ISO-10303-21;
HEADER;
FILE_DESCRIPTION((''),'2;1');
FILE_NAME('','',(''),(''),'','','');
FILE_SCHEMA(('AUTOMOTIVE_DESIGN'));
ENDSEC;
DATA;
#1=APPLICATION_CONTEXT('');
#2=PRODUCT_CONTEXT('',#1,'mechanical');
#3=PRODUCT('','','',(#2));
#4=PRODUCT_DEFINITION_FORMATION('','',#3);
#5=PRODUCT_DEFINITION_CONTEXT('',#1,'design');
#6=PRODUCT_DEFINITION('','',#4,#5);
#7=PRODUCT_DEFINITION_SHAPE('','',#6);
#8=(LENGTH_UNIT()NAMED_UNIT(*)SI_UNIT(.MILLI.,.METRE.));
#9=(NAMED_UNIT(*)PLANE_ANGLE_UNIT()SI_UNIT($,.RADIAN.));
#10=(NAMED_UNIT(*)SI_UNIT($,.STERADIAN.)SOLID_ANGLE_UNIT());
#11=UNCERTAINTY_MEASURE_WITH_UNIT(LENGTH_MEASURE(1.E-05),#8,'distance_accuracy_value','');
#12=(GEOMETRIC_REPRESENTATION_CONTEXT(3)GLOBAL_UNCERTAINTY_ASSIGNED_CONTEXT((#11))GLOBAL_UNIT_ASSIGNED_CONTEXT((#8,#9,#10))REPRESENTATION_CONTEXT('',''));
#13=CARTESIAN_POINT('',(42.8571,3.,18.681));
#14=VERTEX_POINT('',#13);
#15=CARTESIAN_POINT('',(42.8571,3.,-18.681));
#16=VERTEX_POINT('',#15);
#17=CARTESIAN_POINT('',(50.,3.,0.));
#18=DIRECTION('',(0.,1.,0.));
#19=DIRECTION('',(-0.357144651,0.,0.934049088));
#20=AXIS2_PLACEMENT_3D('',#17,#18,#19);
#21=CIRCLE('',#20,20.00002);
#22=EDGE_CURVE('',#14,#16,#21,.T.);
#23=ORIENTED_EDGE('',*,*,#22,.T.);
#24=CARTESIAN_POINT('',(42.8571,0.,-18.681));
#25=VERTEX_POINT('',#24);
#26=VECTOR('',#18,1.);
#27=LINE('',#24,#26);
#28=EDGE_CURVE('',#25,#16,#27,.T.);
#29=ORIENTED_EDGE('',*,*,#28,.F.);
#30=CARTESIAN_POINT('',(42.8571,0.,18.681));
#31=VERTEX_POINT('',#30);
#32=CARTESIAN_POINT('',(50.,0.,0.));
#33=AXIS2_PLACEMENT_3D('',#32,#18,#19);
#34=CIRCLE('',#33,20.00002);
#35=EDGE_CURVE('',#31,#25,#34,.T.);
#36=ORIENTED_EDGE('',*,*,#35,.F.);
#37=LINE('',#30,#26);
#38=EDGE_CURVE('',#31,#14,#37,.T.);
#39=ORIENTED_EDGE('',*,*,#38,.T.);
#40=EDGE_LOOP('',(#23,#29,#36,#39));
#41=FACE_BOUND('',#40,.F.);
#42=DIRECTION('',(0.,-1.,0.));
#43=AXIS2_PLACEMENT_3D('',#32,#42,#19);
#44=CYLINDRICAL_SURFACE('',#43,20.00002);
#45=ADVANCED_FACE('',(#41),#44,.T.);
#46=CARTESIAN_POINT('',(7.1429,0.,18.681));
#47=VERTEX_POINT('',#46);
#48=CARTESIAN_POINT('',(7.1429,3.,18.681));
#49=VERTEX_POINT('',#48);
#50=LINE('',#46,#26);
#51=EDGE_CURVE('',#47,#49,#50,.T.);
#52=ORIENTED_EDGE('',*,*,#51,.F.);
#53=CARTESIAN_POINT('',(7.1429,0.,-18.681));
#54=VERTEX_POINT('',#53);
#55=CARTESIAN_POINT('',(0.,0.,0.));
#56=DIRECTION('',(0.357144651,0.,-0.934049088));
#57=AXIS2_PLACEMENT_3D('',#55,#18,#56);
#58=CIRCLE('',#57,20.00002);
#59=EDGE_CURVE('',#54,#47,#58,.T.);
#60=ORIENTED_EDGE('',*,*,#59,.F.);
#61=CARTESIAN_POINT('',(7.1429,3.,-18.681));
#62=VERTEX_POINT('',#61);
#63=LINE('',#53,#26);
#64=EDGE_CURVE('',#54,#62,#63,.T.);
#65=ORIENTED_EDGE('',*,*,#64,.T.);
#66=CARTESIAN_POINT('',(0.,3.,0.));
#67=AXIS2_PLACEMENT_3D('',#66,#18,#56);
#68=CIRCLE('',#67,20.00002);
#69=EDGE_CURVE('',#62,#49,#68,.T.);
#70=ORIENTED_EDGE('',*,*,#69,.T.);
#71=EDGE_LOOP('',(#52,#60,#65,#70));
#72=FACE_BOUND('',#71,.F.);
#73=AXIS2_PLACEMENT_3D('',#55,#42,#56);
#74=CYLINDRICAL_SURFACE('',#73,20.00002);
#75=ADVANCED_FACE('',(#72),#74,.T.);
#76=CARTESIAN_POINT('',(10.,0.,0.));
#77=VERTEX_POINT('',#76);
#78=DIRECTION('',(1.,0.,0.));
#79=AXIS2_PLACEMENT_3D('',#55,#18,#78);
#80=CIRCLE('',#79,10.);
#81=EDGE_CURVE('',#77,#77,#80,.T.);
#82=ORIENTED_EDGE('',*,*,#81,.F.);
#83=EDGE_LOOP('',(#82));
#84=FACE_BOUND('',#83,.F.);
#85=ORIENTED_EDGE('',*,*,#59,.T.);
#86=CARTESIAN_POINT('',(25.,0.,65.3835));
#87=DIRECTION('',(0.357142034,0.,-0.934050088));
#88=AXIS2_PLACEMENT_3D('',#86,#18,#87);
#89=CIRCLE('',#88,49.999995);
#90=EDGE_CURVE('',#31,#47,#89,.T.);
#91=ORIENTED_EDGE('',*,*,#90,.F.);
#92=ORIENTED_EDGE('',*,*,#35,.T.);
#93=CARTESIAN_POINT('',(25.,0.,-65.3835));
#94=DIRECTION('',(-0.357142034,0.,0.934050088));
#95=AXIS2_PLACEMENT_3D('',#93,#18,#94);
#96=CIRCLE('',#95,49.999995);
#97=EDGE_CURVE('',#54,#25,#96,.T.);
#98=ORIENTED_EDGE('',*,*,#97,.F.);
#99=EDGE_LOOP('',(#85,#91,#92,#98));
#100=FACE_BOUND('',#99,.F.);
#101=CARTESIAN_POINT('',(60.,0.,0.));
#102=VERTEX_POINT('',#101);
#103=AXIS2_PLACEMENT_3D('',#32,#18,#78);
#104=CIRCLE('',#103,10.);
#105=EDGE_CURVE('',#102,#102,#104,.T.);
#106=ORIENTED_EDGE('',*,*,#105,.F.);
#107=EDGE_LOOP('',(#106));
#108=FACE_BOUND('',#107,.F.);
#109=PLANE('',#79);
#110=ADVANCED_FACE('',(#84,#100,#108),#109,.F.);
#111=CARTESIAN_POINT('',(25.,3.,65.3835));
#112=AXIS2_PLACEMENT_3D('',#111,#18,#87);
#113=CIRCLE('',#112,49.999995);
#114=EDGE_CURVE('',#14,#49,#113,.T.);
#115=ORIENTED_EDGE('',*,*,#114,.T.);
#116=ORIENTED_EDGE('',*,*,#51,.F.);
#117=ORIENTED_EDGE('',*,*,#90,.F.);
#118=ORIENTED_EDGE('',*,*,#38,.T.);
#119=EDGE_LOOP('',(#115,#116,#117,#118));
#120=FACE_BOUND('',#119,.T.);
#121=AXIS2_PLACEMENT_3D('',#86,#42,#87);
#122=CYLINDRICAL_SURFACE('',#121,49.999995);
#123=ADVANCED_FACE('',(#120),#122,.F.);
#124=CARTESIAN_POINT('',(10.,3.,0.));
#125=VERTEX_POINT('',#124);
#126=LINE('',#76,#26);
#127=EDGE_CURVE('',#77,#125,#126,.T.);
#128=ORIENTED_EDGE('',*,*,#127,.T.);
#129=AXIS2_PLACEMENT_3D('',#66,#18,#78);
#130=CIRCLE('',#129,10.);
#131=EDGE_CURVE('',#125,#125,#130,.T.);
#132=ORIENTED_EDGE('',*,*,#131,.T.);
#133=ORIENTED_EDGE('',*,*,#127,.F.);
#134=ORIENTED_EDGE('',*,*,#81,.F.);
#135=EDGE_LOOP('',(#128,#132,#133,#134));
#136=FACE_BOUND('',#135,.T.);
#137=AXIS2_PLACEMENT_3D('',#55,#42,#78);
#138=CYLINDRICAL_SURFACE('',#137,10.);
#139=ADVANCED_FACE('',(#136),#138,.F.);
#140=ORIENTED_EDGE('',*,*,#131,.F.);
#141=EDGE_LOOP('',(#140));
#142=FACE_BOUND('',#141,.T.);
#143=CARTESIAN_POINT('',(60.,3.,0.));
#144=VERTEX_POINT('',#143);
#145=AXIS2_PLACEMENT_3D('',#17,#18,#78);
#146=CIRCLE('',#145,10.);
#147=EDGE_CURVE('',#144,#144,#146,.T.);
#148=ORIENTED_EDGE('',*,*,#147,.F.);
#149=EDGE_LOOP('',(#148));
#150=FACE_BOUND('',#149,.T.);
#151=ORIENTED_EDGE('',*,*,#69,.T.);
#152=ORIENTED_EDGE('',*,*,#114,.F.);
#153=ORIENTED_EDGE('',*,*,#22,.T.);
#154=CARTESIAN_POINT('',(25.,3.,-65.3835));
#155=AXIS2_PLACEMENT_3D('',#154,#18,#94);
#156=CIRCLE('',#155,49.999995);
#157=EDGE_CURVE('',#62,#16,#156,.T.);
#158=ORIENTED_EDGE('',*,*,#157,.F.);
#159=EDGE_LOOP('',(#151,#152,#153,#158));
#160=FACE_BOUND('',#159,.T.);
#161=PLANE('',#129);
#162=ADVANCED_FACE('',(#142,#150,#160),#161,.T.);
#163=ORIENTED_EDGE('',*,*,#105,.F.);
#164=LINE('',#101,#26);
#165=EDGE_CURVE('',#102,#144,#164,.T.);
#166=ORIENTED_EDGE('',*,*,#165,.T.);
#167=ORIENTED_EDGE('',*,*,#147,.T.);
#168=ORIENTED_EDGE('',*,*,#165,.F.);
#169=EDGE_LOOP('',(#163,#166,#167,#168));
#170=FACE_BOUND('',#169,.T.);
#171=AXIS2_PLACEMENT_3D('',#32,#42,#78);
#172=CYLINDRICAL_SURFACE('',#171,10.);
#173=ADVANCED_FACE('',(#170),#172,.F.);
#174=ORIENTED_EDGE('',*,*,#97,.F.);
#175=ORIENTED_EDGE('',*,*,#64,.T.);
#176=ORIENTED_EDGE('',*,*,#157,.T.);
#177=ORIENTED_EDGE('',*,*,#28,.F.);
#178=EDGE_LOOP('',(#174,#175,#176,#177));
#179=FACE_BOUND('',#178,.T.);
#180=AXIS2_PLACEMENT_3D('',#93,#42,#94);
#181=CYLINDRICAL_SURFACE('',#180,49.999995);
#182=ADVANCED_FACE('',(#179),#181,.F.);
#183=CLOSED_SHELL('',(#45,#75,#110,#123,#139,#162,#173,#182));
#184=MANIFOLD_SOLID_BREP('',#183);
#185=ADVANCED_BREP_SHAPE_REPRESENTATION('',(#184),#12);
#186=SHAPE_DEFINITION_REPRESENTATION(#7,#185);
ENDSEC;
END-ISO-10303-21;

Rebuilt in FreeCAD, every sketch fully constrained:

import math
import FreeCAD as App
import Part
import Sketcher
from FreeCAD import Vector
Q = App.Units.Quantity

doc = App.newDocument("Part")
params = doc.addObject("Spreadsheet::Sheet", "Params")
for row, (alias, value) in enumerate([
    ("pad1_length", "0.1181102 in"),
], start=1):
    params.set(f"A{row}", alias)
    params.set(f"B{row}", "=" + value)
    params.setAlias(f"B{row}", alias)

body = doc.addObject("PartDesign::Body", "Body")

# Sketch on XZ plane
sketch1 = body.newObject("Sketcher::SketchObject", "Sketch")
sketch1.AttachmentSupport = (doc.getObject("XZ_Plane"), [""])
sketch1.MapMode = "FlatFace"
sketch1.addGeometry([
    Part.ArcOfCircle(Part.Circle(Vector(25, 65, 0), Vector(0, 0, 1), 50), math.radians(-111), math.radians(-69)),  # 0
    Part.ArcOfCircle(Part.Circle(Vector(50, 0, 0), Vector(0, 0, 1), 20), math.radians(-111), math.radians(111)),  # 1
    Part.ArcOfCircle(Part.Circle(Vector(25, -65, 0), Vector(0, 0, 1), 50), math.radians(69), math.radians(111)),  # 2
    Part.ArcOfCircle(Part.Circle(Vector(0, 0, 0), Vector(0, 0, 1), 20), math.radians(69), math.radians(291)),  # 3
    Part.Circle(Vector(0, 0, 0), Vector(0, 0, 1), 10),  # 4
    Part.Circle(Vector(50, 0, 0), Vector(0, 0, 1), 10),  # 5
], False)
sketch1.addConstraint([
    Sketcher.Constraint("Tangent", 0, 2, 1, 2),
    Sketcher.Constraint("Tangent", 1, 1, 2, 1),
    Sketcher.Constraint("Tangent", 2, 2, 3, 2),
    Sketcher.Constraint("Tangent", 3, 1, 0, 1),
    Sketcher.Constraint("Coincident", 3, 3, -1, 1),
    Sketcher.Constraint("Coincident", 4, 3, -1, 1),
    Sketcher.Constraint("Coincident", 5, 3, 1, 3),
    Sketcher.Constraint("Equal", 0, 2),
    Sketcher.Constraint("Equal", 1, 3),
    Sketcher.Constraint("Equal", 4, 5),
    Sketcher.Constraint("PointOnObject", 1, 3, -1),
    Sketcher.Constraint("Diameter", 4, Q("0.7874 in")),
    Sketcher.Constraint("Radius", 0, Q("1.9685 in")),
    Sketcher.Constraint("Radius", 1, Q("0.7874 in")),
    Sketcher.Constraint("DistanceX", -1, 1, 1, 3, Q("1.9685 in")),
])
pad1 = body.newObject("PartDesign::Pad", "Pad")
pad1.Profile = sketch1
pad1.setExpression("Length", "Params.pad1_length")
pad1.Reversed = True

doc.recompute()
